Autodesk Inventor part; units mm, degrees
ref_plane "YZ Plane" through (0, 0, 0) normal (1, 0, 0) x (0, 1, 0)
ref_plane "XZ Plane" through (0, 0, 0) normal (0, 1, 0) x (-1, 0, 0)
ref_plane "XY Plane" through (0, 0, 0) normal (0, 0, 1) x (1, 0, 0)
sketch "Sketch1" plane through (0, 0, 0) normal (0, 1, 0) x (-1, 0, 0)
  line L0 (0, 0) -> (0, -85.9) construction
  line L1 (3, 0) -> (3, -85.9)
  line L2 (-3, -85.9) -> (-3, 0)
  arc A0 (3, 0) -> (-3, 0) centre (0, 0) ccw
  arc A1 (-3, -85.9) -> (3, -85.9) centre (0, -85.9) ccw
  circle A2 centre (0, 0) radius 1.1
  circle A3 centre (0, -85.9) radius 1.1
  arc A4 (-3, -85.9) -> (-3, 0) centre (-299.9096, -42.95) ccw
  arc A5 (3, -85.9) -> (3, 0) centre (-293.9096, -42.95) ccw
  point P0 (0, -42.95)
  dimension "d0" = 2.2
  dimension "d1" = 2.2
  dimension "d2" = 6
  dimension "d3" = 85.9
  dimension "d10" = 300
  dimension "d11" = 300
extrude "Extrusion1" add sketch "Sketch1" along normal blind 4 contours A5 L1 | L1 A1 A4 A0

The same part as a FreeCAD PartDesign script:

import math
import FreeCAD as App
import Part
import Sketcher
from FreeCAD import Vector

doc = App.newDocument("Part")
body = doc.addObject("PartDesign::Body", "Body")

# Sketch on XZ plane
sketch1 = doc.addObject("Sketcher::SketchObject", "Sketch")
body.addObject(sketch1)
sketch1.AttachmentSupport = (doc.XZ_Plane, [""])
sketch1.MapMode = "FlatFace"
sketch1.addGeometry([
    Part.ArcOfCircle(Part.Circle(Vector(293.9, -43, 0), Vector(0, 0, 1), 300), math.radians(171.77), math.radians(188.23)),  # 0
    Part.ArcOfCircle(Part.Circle(Vector(0, 0, 0), Vector(0, 0, 1), 3), math.radians(0), math.radians(180)),  # 1
    Part.ArcOfCircle(Part.Circle(Vector(299.9, -43, 0), Vector(0, 0, 1), 300), math.radians(171.77), math.radians(188.23)),  # 2
    Part.ArcOfCircle(Part.Circle(Vector(0, -85.9, 0), Vector(0, 0, 1), 3), math.radians(180), math.radians(360)),  # 3
    Part.Circle(Vector(0, 0, 0), Vector(0, 0, 1), 1.1),  # 4
    Part.Circle(Vector(0, -85.9, 0), Vector(0, 0, 1), 1.1),  # 5
], False)
sketch1.addConstraint([
    Sketcher.Constraint("Coincident", 0, 1, 1, 2),
    Sketcher.Constraint("Coincident", 1, 1, 2, 1),
    Sketcher.Constraint("Coincident", 2, 2, 3, 2),
    Sketcher.Constraint("Coincident", 3, 1, 0, 2),
    Sketcher.Constraint("Coincident", 1, 3, -1, 1),
    Sketcher.Constraint("Coincident", 4, 3, -1, 1),
    Sketcher.Constraint("Coincident", 5, 3, 3, 3),
    Sketcher.Constraint("Equal", 0, 2),
    Sketcher.Constraint("Equal", 1, 3),
    Sketcher.Constraint("Equal", 4, 5),
    Sketcher.Constraint("Symmetric", 2, 2, 3, 1, -2),
    Sketcher.Constraint("PointOnObject", 0, 1, -1),
    Sketcher.Constraint("PointOnObject", 1, 1, -1),
    Sketcher.Constraint("Horizontal", 5, 3, 2, 2),
    Sketcher.Constraint("Radius", 0, 300.0),
    Sketcher.Constraint("Radius", 1, 3.0),
    Sketcher.Constraint("Diameter", 4, 2.2),
    Sketcher.Constraint("DistanceY", 3, 3, -1, 1, 85.9),
])
pad1 = doc.addObject("PartDesign::Pad", "Pad")
body.addObject(pad1)
pad1.Profile = sketch1
pad1.Length = 4
pad1.Reversed = True

doc.recompute()
